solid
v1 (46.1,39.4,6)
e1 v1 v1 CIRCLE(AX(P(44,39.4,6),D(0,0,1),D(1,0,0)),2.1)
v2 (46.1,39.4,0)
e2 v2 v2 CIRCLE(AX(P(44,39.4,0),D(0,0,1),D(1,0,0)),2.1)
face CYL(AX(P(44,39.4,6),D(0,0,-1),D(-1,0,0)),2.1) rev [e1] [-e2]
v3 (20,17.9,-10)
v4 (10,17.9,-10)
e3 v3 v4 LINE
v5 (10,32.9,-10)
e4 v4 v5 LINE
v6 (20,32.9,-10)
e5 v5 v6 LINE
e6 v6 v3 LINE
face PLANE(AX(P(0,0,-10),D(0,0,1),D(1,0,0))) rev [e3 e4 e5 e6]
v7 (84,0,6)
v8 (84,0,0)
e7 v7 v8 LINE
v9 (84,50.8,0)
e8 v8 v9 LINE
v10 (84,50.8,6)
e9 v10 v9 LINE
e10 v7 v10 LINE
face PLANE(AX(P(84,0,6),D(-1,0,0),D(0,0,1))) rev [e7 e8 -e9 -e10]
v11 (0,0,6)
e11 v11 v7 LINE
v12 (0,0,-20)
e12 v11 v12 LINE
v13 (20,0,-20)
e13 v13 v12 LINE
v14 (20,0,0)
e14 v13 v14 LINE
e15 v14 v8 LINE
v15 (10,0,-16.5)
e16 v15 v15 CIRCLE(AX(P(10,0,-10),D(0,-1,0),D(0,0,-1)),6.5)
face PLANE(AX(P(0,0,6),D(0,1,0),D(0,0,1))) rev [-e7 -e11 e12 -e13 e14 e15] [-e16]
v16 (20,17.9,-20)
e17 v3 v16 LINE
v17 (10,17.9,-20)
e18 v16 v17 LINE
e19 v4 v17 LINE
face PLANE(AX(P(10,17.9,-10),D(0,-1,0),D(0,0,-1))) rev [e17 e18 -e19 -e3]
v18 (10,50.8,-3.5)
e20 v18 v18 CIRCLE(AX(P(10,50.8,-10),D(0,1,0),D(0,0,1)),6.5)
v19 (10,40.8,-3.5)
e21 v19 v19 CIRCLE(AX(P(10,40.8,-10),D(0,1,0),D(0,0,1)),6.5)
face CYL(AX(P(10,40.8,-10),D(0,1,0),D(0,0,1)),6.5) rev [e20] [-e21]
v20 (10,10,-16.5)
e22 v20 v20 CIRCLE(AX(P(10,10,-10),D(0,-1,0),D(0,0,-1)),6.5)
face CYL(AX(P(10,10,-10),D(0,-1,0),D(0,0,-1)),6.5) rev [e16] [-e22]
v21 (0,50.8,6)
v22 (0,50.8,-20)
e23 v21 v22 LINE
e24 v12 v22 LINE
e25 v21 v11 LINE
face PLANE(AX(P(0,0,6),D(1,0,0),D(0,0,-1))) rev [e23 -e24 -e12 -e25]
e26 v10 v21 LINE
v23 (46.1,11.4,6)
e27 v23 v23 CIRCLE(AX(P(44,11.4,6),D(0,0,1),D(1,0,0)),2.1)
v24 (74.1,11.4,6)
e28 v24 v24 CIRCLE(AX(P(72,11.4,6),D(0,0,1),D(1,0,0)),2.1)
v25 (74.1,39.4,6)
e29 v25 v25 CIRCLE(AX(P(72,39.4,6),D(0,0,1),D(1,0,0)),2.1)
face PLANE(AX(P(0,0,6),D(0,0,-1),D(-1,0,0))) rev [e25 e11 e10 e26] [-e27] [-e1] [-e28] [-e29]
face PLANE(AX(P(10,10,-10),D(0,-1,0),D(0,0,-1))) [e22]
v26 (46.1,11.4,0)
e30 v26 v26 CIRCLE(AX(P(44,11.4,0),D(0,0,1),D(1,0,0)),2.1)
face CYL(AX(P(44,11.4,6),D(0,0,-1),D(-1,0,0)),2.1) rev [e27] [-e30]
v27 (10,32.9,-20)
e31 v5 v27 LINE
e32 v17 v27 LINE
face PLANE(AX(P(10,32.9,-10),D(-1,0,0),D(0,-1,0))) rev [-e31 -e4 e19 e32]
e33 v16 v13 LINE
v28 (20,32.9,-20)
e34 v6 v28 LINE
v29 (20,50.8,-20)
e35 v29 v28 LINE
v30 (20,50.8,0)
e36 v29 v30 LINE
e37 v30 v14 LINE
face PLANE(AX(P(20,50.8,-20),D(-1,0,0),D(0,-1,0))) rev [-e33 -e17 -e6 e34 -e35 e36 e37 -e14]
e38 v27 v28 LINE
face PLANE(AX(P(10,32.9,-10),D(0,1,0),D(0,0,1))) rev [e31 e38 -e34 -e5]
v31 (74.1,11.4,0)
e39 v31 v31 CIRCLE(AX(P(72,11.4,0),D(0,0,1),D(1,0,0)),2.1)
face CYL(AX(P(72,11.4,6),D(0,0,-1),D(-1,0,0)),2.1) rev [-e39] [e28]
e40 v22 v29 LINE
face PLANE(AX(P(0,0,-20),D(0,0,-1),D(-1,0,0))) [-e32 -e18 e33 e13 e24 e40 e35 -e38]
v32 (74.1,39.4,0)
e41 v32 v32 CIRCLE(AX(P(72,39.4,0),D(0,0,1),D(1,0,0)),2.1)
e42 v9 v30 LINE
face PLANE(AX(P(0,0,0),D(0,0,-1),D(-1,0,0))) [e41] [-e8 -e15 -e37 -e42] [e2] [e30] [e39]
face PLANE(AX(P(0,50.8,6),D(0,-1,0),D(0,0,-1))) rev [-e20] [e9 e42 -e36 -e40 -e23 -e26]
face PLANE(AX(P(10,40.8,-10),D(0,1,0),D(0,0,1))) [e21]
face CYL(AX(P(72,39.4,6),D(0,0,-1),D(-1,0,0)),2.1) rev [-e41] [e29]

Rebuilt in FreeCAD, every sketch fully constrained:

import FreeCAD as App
import Part
import Sketcher
Q = App.Units.Quantity

doc = App.newDocument("Part")
body = doc.addObject("PartDesign::Body", "Body")

sketch1 = body.newObject("Sketcher::SketchObject", "Sketch")
sketch1.AttachmentSupport = (doc.getObject("XY_Plane"), [""])
sketch1.MapMode = "FlatFace"
sketch1.addGeometry([
    Part.LineSegment(App.Vector(0, 50.8, 0), App.Vector(0, 0, 0)),
    Part.LineSegment(App.Vector(0, 0, 0), App.Vector(84, 0, 0)),
    Part.LineSegment(App.Vector(84, 0, 0), App.Vector(84, 50.8, 0)),
    Part.LineSegment(App.Vector(84, 50.8, 0), App.Vector(0, 50.8, 0)),
    Part.Circle(App.Vector(44, 11.4, 0), App.Vector(0, 0, 1), 2.1),
    Part.Circle(App.Vector(72, 11.4, 0), App.Vector(0, 0, 1), 2.1),
    Part.Circle(App.Vector(44, 39.4, 0), App.Vector(0, 0, 1), 2.1),
    Part.Circle(App.Vector(72, 39.4, 0), App.Vector(0, 0, 1), 2.1),
], False)
sketch1.addConstraint([
    Sketcher.Constraint("Coincident", 0, 2, 1, 1),
    Sketcher.Constraint("Coincident", 1, 2, 2, 1),
    Sketcher.Constraint("Coincident", 2, 2, 3, 1),
    Sketcher.Constraint("Coincident", 3, 2, 0, 1),
    Sketcher.Constraint("Vertical", 0),
    Sketcher.Constraint("Horizontal", 1),
    Sketcher.Constraint("Vertical", 2),
    Sketcher.Constraint("Horizontal", 3),
    Sketcher.Constraint("Coincident", 0, 2, -1, 1),
    Sketcher.Constraint("Equal", 4, 5),
    Sketcher.Constraint("Equal", 5, 6),
    Sketcher.Constraint("Equal", 6, 7),
    Sketcher.Constraint("Horizontal", 4, 3, 5, 3),
    Sketcher.Constraint("Horizontal", 6, 3, 7, 3),
    Sketcher.Constraint("Vertical", 4, 3, 6, 3),
    Sketcher.Constraint("Vertical", 5, 3, 7, 3),
    Sketcher.Constraint("Diameter", 4, Q("4.2 mm")),
    Sketcher.Constraint("DistanceX", 1, 1, 1, 2, Q("84 mm")),
    Sketcher.Constraint("DistanceY", 0, 2, 0, 1, Q("50.8 mm")),
    Sketcher.Constraint("DistanceX", -1, 1, 4, 3, Q("44 mm")),
    Sketcher.Constraint("DistanceX", -1, 1, 5, 3, Q("72 mm")),
    Sketcher.Constraint("DistanceY", 4, 3, 6, 3, Q("28 mm")),
    Sketcher.Constraint("DistanceY", -1, 1, 4, 3, Q("11.4 mm")),
])
pad1 = body.newObject("PartDesign::Pad", "Pad")
pad1.Profile = sketch1
pad1.Length = 6

sketch2 = body.newObject("Sketcher::SketchObject", "Sketch001")
sketch2.AttachmentSupport = (doc.getObject("XY_Plane"), [""])
sketch2.MapMode = "FlatFace"
sketch2.addGeometry([
    Part.LineSegment(App.Vector(20, 51, 0), App.Vector(20, 0, 0)),
    Part.LineSegment(App.Vector(20, 0, 0), App.Vector(0, 0, 0)),
    Part.LineSegment(App.Vector(0, 0, 0), App.Vector(0, 51, 0)),
    Part.LineSegment(App.Vector(0, 51, 0), App.Vector(20, 51, 0)),
], False)
sketch2.addConstraint([
    Sketcher.Constraint("Coincident", 0, 2, 1, 1),
    Sketcher.Constraint("Coincident", 1, 2, 2, 1),
    Sketcher.Constraint("Coincident", 2, 2, 3, 1),
    Sketcher.Constraint("Coincident", 3, 2, 0, 1),
    Sketcher.Constraint("Vertical", 0),
    Sketcher.Constraint("Horizontal", 1),
    Sketcher.Constraint("Vertical", 2),
    Sketcher.Constraint("Horizontal", 3),
    Sketcher.Constraint("Coincident", 1, 2, -1, 1),
    Sketcher.Constraint("DistanceX", 1, 2, 1, 1, Q("20 mm")),
    Sketcher.Constraint("DistanceY", 0, 2, 0, 1, Q("50.8 mm")),
])
pad2 = body.newObject("PartDesign::Pad", "Pad001")
pad2.Profile = sketch2
pad2.Length = 20
pad2.Reversed = True

sketch3 = body.newObject("Sketcher::SketchObject", "Sketch002")
sketch3.AttachmentSupport = (doc.getObject("XZ_Plane"), [""])
sketch3.MapMode = "FlatFace"
sketch3.AttachmentOffset = App.Placement(App.Vector(0, 0, -50.8), App.Rotation())
sketch3.addGeometry(Part.Circle(App.Vector(10, -10, 0), App.Vector(0, 0, 1), 6), False)
sketch3.addConstraint([
    Sketcher.Constraint("Diameter", 0, Q("13 mm")),
    Sketcher.Constraint("DistanceX", -1, 1, 0, 3, Q("10 mm")),
    Sketcher.Constraint("DistanceY", 0, 3, -1, 1, Q("10 mm")),
])
pocket1 = body.newObject("PartDesign::Pocket", "Pocket")
pocket1.Profile = sketch3
pocket1.Length = 10
pocket1.Reversed = True

sketch4 = body.newObject("Sketcher::SketchObject", "Sketch003")
sketch4.AttachmentSupport = (doc.getObject("XZ_Plane"), [""])
sketch4.MapMode = "FlatFace"
sketch4.AttachmentOffset = App.Placement(App.Vector(0, 0, -10), App.Rotation())
sketch4.addGeometry(Part.Circle(App.Vector(10, -10, 0), App.Vector(0, 0, 1), 6), False)
sketch4.addConstraint([
    Sketcher.Constraint("Diameter", 0, Q("13 mm")),
    Sketcher.Constraint("DistanceX", -1, 1, 0, 3, Q("10 mm")),
    Sketcher.Constraint("DistanceY", 0, 3, -1, 1, Q("10 mm")),
])
pocket2 = body.newObject("PartDesign::Pocket", "Pocket001")
pocket2.Profile = sketch4
pocket2.Length = 10
pocket2.Reversed = True

sketch5 = body.newObject("Sketcher::SketchObject", "Sketch004")
sketch5.AttachmentSupport = (doc.getObject("XY_Plane"), [""])
sketch5.MapMode = "FlatFace"
sketch5.AttachmentOffset = App.Placement(App.Vector(0, 0, -20), App.Rotation())
sketch5.addGeometry([
    Part.LineSegment(App.Vector(20, 33, 0), App.Vector(20, 18, 0)),
    Part.LineSegment(App.Vector(20, 18, 0), App.Vector(10, 18, 0)),
    Part.LineSegment(App.Vector(10, 18, 0), App.Vector(10, 33, 0)),
    Part.LineSegment(App.Vector(10, 33, 0), App.Vector(20, 33, 0)),
], False)
sketch5.addConstraint([
    Sketcher.Constraint("Coincident", 0, 2, 1, 1),
    Sketcher.Constraint("Coincident", 1, 2, 2, 1),
    Sketcher.Constraint("Coincident", 2, 2, 3, 1),
    Sketcher.Constraint("Coincident", 3, 2, 0, 1),
    Sketcher.Constraint("Vertical", 0),
    Sketcher.Constraint("Horizontal", 1),
    Sketcher.Constraint("Vertical", 2),
    Sketcher.Constraint("Horizontal", 3),
    Sketcher.Constraint("DistanceX", 1, 2, 1, 1, Q("10 mm")),
    Sketcher.Constraint("DistanceY", 0, 2, 0, 1, Q("15 mm")),
    Sketcher.Constraint("DistanceX", -1, 1, 0, 2, Q("20 mm")),
    Sketcher.Constraint("DistanceY", -1, 1, 0, 2, Q("17.9 mm")),
])
pocket3 = body.newObject("PartDesign::Pocket", "Pocket002")
pocket3.Profile = sketch5
pocket3.Length = 10
pocket3.Reversed = True

doc.recompute()
